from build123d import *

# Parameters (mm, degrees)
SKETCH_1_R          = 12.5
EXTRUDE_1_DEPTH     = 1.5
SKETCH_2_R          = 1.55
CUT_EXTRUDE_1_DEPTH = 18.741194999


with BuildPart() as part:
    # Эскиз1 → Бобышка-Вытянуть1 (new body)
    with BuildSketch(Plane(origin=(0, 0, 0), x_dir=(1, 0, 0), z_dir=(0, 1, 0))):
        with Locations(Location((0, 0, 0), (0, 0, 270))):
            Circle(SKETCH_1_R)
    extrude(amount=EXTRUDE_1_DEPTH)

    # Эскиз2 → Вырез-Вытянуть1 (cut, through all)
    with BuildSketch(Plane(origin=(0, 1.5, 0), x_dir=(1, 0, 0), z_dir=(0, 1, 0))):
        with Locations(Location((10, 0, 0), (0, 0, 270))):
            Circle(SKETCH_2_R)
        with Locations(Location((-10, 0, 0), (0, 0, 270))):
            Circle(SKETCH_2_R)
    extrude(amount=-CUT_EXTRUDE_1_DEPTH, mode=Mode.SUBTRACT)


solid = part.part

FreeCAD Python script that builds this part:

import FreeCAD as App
import Part
import Sketcher

doc = App.newDocument("Part")
body = doc.addObject("PartDesign::Body", "Body")

sketch1 = doc.addObject("Sketcher::SketchObject", "Sketch")
body.addObject(sketch1)
sketch1.AttachmentSupport = (doc.XZ_Plane, [""])
sketch1.MapMode = "FlatFace"
sketch1.addGeometry(Part.Circle(App.Vector(0, 0, 0), App.Vector(0, 0, 1), 12), False)
sketch1.addConstraint([
    Sketcher.Constraint("Coincident", 0, 3, -1, 1),
    Sketcher.Constraint("Diameter", 0, 25.0),
])
pad1 = doc.addObject("PartDesign::Pad", "Pad")
body.addObject(pad1)
pad1.Profile = sketch1
pad1.Length = 1.5
pad1.Reversed = True

sketch2 = doc.addObject("Sketcher::SketchObject", "Sketch001")
body.addObject(sketch2)
sketch2.AttachmentSupport = (doc.XZ_Plane, [""])
sketch2.MapMode = "FlatFace"
sketch2.AttachmentOffset = App.Placement(App.Vector(0, 0, -1.5), App.Rotation())
sketch2.addGeometry([
    Part.Circle(App.Vector(10, 0, 0), App.Vector(0, 0, 1), 1.6),
    Part.Circle(App.Vector(-10, 0, 0), App.Vector(0, 0, 1), 1.6),
], False)
sketch2.addConstraint([
    Sketcher.Constraint("Equal", 0, 1),
    Sketcher.Constraint("Symmetric", 0, 3, 1, 3, -1, 1),
    Sketcher.Constraint("PointOnObject", 0, 3, -1),
    Sketcher.Constraint("Diameter", 0, 3.1),
    Sketcher.Constraint("DistanceX", -1, 1, 0, 3, 10.0),
])
pocket1 = doc.addObject("PartDesign::Pocket", "Pocket")
body.addObject(pocket1)
pocket1.Profile = sketch2
pocket1.Type = "ThroughAll"
pocket1.Reversed = True

doc.recompute()
